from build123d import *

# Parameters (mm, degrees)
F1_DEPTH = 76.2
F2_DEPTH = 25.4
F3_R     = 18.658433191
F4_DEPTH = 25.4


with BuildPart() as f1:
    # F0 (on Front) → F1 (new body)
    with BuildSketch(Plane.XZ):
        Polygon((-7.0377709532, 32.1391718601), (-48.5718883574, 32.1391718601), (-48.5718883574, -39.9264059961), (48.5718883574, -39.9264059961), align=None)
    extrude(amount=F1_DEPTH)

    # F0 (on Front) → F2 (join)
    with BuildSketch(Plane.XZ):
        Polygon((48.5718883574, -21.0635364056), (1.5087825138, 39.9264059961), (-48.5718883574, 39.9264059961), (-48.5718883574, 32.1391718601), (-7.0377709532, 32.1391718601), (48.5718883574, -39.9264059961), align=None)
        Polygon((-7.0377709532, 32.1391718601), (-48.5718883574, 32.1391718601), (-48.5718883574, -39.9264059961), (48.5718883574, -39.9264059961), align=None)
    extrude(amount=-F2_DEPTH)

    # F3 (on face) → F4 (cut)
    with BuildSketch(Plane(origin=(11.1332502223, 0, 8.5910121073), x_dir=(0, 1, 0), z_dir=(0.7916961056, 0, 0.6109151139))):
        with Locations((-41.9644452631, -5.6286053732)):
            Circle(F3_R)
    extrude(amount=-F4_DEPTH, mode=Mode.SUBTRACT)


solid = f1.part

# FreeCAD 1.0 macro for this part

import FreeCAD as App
import Part
import Sketcher

V = App.Vector
Q = App.Units.Quantity

doc = App.newDocument("Part")
body = doc.addObject("PartDesign::Body", "Body")

# Sketch on XZ plane
sketch1 = body.newObject("Sketcher::SketchObject", "Sketch")
sketch1.AttachmentSupport = (doc.getObject("XZ_Plane"), [""])
sketch1.MapMode = "FlatFace"
sketch1.addGeometry([
    Part.LineSegment(V(-7, 32, 0), V(-49, 32, 0)),
    Part.LineSegment(V(-49, 32, 0), V(-49, -40, 0)),
    Part.LineSegment(V(-49, -40, 0), V(49, -40, 0)),
    Part.LineSegment(V(49, -40, 0), V(-7, 32, 0)),
], False)
sketch1.addConstraint([
    Sketcher.Constraint("Coincident", 0, 2, 1, 1),
    Sketcher.Constraint("Coincident", 1, 2, 2, 1),
    Sketcher.Constraint("Coincident", 2, 2, 3, 1),
    Sketcher.Constraint("Coincident", 3, 2, 0, 1),
    Sketcher.Constraint("Horizontal", 0),
    Sketcher.Constraint("Vertical", 1),
    Sketcher.Constraint("Horizontal", 2),
    Sketcher.Constraint("Distance", 3, 91.026819),
    Sketcher.Constraint("DistanceX", 0, 2, 0, 1, 41.534117),
    Sketcher.Constraint("DistanceX", 2, 1, 2, 2, 97.143777),
    Sketcher.Constraint("DistanceX", 0, 2, -1, 1, 48.571888),
    Sketcher.Constraint("DistanceY", -1, 1, 0, 2, 32.139172),
])
pad1 = body.newObject("PartDesign::Pad", "Pad")
pad1.Profile = sketch1
pad1.Length = Q("3 in")

# Sketch on XZ plane
sketch2 = body.newObject("Sketcher::SketchObject", "Sketch001")
sketch2.AttachmentSupport = (doc.getObject("XZ_Plane"), [""])
sketch2.MapMode = "FlatFace"
sketch2.addGeometry([
    Part.LineSegment(V(49, -21, 0), V(2, 40, 0)),  # 0
    Part.LineSegment(V(2, 40, 0), V(-49, 40, 0)),  # 1
    Part.LineSegment(V(-49, 40, 0), V(-49, -40, 0)),  # 2
    Part.LineSegment(V(-49, -40, 0), V(49, -40, 0)),  # 3
    Part.LineSegment(V(49, -40, 0), V(49, -21, 0)),  # 4
], False)
sketch2.addConstraint([
    Sketcher.Constraint("Coincident", 0, 2, 1, 1),
    Sketcher.Constraint("Coincident", 1, 2, 2, 1),
    Sketcher.Constraint("Coincident", 2, 2, 3, 1),
    Sketcher.Constraint("Coincident", 3, 2, 4, 1),
    Sketcher.Constraint("Coincident", 4, 2, 0, 1),
    Sketcher.Constraint("Horizontal", 1),
    Sketcher.Constraint("Vertical", 2),
    Sketcher.Constraint("Horizontal", 3),
    Sketcher.Constraint("Vertical", 4),
    Sketcher.Constraint("Symmetric", 1, 2, 3, 2, -1, 1),
    Sketcher.Constraint("DistanceX", 1, 2, 1, 1, 50.080671),
    Sketcher.Constraint("DistanceY", 2, 2, 2, 1, 79.852812),
    Sketcher.Constraint("DistanceY", 4, 1, 4, 2, 18.86287),
    Sketcher.Constraint("DistanceX", 3, 1, 3, 2, 97.143777),
])
pad2 = body.newObject("PartDesign::Pad", "Pad001")
pad2.Profile = sketch2
pad2.Length = Q("1 in")
pad2.Reversed = True

# Sketch on an angled plane
sketch3 = body.newObject("Sketcher::SketchObject", "Sketch002")
sketch3.Placement = App.Placement(V(11.13325, 0, 8.591012), App.Rotation(V(0, 1, 0), V(-0.610915114, 0, 0.791696106), V(0.791696106, 0, 0.610915114), "ZXY"))
sketch3.addGeometry(Part.Circle(V(-42, -6, 0), V(0, 0, 1), 19), False)
sketch3.addConstraint([
    Sketcher.Constraint("Diameter", 0, 37.316866),
    Sketcher.Constraint("DistanceX", 0, 3, -1, 1, 41.964445),
    Sketcher.Constraint("DistanceY", 0, 3, -1, 1, 5.628605),
])
pocket1 = body.newObject("PartDesign::Pocket", "Pocket")
pocket1.Profile = sketch3
pocket1.Length = Q("1 in")

doc.recompute()
